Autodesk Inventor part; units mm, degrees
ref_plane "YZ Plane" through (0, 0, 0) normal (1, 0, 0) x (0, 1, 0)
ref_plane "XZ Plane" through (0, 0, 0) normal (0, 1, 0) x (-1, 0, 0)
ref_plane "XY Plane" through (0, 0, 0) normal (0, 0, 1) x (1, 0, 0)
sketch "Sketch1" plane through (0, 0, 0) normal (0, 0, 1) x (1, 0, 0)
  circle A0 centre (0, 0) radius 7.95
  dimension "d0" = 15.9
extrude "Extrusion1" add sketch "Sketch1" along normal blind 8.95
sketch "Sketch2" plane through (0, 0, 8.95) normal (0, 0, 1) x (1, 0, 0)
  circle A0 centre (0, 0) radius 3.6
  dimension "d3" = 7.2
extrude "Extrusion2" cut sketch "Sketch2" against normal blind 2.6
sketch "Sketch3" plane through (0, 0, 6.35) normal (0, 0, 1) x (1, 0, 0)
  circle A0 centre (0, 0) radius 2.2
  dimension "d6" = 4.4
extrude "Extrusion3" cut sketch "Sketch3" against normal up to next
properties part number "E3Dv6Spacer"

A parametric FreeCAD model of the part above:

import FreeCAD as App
import Part
import Sketcher
from FreeCAD import Vector

doc = App.newDocument("Part")
body = doc.addObject("PartDesign::Body", "Body")

# Sketch on XY plane
sketch1 = body.newObject("Sketcher::SketchObject", "Sketch")
sketch1.AttachmentSupport = (doc.getObject("XY_Plane"), [""])
sketch1.MapMode = "FlatFace"
sketch1.addGeometry(Part.Circle(Vector(0, 0, 0), Vector(0, 0, 1), 8), False)
sketch1.addConstraint(Sketcher.Constraint("Coincident", 0, 3, -1, 1))
sketch1.addConstraint(Sketcher.Constraint("Diameter", 0, 15.9))
pad1 = body.newObject("PartDesign::Pad", "Pad")
pad1.Profile = sketch1
pad1.Length = 8.95

# Sketch on XY plane
sketch2 = body.newObject("Sketcher::SketchObject", "Sketch001")
sketch2.AttachmentSupport = (doc.getObject("XY_Plane"), [""])
sketch2.MapMode = "FlatFace"
sketch2.AttachmentOffset = App.Placement(Vector(0, 0, 8.95), App.Rotation())
sketch2.addGeometry(Part.Circle(Vector(0, 0, 0), Vector(0, 0, 1), 3.6), False)
sketch2.addConstraint(Sketcher.Constraint("Coincident", 0, 3, -1, 1))
sketch2.addConstraint(Sketcher.Constraint("Diameter", 0, 7.2))
pocket1 = body.newObject("PartDesign::Pocket", "Pocket")
pocket1.Profile = sketch2
pocket1.Length = 2.6

# Sketch on XY plane
sketch3 = body.newObject("Sketcher::SketchObject", "Sketch002")
sketch3.AttachmentSupport = (doc.getObject("XY_Plane"), [""])
sketch3.MapMode = "FlatFace"
sketch3.AttachmentOffset = App.Placement(Vector(0, 0, 6.35), App.Rotation())
sketch3.addGeometry(Part.Circle(Vector(0, 0, 0), Vector(0, 0, 1), 2.2), False)
sketch3.addConstraint(Sketcher.Constraint("Coincident", 0, 3, -1, 1))
sketch3.addConstraint(Sketcher.Constraint("Diameter", 0, 4.4))
pocket2 = body.newObject("PartDesign::Pocket", "Pocket001")
pocket2.Profile = sketch3
pocket2.Type = "UpToFirst"

doc.recompute()
